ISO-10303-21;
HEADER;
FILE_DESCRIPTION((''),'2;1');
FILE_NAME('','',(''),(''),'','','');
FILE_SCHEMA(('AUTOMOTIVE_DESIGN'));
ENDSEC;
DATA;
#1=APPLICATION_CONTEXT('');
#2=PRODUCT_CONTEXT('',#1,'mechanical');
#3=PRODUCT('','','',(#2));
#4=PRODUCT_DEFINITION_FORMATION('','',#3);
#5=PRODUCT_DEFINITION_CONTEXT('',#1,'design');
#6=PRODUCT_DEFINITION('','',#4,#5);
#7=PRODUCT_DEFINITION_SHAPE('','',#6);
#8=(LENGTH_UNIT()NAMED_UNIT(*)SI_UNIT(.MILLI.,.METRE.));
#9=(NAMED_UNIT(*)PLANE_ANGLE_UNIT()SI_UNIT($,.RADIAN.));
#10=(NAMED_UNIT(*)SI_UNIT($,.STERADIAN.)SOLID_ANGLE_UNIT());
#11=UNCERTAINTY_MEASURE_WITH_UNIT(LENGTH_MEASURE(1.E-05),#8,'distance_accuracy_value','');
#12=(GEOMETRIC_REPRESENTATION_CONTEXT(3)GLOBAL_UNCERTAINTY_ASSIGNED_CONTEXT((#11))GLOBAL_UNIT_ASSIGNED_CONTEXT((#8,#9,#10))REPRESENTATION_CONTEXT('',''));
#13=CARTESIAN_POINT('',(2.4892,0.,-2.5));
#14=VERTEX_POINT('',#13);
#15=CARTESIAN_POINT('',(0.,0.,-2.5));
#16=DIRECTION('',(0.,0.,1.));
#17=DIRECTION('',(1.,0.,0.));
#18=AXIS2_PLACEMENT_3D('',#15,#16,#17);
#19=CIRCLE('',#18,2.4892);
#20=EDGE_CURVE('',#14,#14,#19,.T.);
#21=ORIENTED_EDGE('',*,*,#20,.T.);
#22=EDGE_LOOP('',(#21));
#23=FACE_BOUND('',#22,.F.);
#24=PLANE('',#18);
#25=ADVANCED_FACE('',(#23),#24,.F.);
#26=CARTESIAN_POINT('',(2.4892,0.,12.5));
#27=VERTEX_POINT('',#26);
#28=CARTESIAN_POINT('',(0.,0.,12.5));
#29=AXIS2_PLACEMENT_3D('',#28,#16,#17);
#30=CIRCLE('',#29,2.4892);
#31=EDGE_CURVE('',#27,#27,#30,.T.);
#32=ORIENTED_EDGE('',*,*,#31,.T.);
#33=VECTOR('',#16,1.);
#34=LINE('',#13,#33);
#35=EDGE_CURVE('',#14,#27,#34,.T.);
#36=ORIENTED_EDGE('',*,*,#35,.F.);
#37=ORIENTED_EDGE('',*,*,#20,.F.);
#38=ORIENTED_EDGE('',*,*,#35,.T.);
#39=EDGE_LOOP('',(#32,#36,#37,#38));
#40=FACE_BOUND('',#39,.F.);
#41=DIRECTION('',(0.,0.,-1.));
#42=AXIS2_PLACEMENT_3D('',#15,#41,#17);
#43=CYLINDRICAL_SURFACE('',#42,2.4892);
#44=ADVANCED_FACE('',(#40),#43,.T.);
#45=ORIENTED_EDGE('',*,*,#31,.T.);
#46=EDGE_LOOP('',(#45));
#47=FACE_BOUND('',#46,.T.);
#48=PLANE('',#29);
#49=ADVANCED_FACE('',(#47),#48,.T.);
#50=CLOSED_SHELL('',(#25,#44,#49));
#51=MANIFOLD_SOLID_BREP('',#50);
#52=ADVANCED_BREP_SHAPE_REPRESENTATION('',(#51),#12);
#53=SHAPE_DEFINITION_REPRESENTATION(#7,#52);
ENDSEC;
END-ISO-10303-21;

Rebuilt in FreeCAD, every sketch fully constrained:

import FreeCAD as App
import Part
import Sketcher

V = App.Vector

doc = App.newDocument("Part")
body = doc.addObject("PartDesign::Body", "Body")

# Sketch on XY plane
sketch1 = body.newObject("Sketcher::SketchObject", "Sketch")
sketch1.AttachmentSupport = (doc.getObject("XY_Plane"), [""])
sketch1.MapMode = "FlatFace"
sketch1.AttachmentOffset = App.Placement(V(0, 0, -2.5), App.Rotation())
sketch1.addGeometry(Part.Circle(V(0, 0, 0), V(0, 0, 1), 2.5), False)
sketch1.addConstraint([
    Sketcher.Constraint("Coincident", 0, 3, -1, 1),
    Sketcher.Constraint("Diameter", 0, 4.9784),
])
pad1 = body.newObject("PartDesign::Pad", "Pad")
pad1.Profile = sketch1
pad1.Length = 15

doc.recompute()
